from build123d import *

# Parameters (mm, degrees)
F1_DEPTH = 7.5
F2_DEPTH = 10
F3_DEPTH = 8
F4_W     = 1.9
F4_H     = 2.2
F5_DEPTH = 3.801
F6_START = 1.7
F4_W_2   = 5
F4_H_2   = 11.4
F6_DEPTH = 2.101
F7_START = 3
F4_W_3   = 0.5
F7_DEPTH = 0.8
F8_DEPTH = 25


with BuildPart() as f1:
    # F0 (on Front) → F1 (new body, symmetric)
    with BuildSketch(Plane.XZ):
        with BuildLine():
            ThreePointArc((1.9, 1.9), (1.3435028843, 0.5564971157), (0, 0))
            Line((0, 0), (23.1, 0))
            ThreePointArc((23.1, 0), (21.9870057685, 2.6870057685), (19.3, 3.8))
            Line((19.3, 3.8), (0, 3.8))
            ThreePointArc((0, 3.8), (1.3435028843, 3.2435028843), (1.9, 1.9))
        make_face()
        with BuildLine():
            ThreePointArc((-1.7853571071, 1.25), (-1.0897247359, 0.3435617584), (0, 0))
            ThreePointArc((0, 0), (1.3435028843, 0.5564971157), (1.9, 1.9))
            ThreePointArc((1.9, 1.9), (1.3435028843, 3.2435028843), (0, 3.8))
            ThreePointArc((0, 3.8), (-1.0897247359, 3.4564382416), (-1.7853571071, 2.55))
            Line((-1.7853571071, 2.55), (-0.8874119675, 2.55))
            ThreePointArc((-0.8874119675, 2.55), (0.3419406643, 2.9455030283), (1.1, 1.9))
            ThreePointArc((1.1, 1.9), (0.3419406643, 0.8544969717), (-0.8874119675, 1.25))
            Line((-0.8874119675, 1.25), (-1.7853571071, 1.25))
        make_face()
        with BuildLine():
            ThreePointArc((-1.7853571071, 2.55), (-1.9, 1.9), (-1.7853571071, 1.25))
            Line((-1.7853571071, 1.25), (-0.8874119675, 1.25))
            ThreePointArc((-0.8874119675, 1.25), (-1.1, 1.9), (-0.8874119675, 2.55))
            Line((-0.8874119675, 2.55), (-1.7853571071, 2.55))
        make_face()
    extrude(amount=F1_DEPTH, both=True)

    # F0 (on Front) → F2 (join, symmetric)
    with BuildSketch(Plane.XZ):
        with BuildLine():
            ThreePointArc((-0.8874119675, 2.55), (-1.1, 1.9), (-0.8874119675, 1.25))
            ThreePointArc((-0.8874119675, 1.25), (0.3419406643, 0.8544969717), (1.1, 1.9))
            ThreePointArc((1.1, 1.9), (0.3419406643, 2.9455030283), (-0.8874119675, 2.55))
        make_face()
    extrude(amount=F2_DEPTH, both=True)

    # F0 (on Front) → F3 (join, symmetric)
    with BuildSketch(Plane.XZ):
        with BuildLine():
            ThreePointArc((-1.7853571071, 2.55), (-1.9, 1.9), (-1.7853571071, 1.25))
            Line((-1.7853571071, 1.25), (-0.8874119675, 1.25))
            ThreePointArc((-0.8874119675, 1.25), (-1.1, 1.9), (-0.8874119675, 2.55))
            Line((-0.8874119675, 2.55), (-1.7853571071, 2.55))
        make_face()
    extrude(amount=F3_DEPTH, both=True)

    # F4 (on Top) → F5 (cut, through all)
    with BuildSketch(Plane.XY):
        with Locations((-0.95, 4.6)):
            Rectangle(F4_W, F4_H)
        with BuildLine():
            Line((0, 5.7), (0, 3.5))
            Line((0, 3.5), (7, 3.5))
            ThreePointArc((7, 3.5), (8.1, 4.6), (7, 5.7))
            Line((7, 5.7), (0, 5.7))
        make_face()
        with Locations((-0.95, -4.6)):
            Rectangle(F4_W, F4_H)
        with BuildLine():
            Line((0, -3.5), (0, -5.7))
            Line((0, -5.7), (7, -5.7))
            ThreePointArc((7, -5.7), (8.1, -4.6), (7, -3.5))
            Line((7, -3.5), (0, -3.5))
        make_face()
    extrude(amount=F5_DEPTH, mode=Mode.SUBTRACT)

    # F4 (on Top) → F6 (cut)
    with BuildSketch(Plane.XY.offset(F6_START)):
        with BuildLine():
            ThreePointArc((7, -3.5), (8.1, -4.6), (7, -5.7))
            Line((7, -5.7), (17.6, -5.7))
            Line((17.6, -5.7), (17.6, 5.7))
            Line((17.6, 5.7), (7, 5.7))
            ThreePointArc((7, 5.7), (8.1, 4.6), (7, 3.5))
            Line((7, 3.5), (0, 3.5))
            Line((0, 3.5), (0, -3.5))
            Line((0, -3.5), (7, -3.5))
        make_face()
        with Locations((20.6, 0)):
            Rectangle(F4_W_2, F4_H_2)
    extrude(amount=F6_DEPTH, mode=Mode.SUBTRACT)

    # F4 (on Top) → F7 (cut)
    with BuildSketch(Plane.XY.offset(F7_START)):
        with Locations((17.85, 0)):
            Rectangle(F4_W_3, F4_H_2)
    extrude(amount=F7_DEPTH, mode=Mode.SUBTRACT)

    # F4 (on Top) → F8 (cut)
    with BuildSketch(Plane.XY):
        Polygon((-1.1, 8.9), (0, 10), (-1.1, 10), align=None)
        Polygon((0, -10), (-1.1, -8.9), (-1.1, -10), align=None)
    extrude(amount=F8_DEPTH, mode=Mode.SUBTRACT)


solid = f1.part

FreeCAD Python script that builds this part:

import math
import FreeCAD as App
import Part
import Sketcher
from FreeCAD import Vector
Q = App.Units.Quantity


def add_polygon(sketch, points):
    """Adds a closed chain of lines whose ends are joined by coincident constraints."""
    first, n = sketch.GeometryCount, len(points)
    for a, b in zip(points, points[1:] + points[:1]):
        sketch.addGeometry(Part.LineSegment(App.Vector(*a, 0), App.Vector(*b, 0)), False)
    for i in range(n):
        sketch.addConstraint(Sketcher.Constraint("Coincident", first + i, 2, first + (i + 1) % n, 1))

doc = App.newDocument("Part")
body = doc.addObject("PartDesign::Body", "Body")

# Sketch on XZ plane
sketch1 = body.newObject("Sketcher::SketchObject", "Sketch")
sketch1.AttachmentSupport = (doc.getObject("XZ_Plane"), [""])
sketch1.MapMode = "FlatFace"
sketch1.addGeometry([
    Part.LineSegment(Vector(0, 0, 0), Vector(23.1, 0, 0)),  # 0
    Part.ArcOfCircle(Part.Circle(Vector(19.3, 0, 0), Vector(0, 0, 1), 3.8), math.radians(0), math.radians(90)),  # 1
    Part.LineSegment(Vector(19.3, 3.8, 0), Vector(0, 3.8, 0)),  # 2
    Part.ArcOfCircle(Part.Circle(Vector(0, 1.9, 0), Vector(0, 0, 1), 1.9), math.radians(90), math.radians(160)),  # 3
    Part.ArcOfCircle(Part.Circle(Vector(0, 1.9, 0), Vector(0, 0, 1), 1.9), math.radians(160), math.radians(200)),  # 4
    Part.ArcOfCircle(Part.Circle(Vector(0, 1.9, 0), Vector(0, 0, 1), 1.9), math.radians(-160), math.radians(-90)),  # 5
    Part.ArcOfCircle(Part.Circle(Vector(0, 1.9, 0), Vector(0, 0, 1), 1.1), math.radians(0), math.radians(144)),  # 6
    Part.ArcOfCircle(Part.Circle(Vector(0, 1.9, 0), Vector(0, 0, 1), 1.1), math.radians(-144), math.radians(0)),  # 7
    Part.ArcOfCircle(Part.Circle(Vector(0, 1.9, 0), Vector(0, 0, 1), 1.1), math.radians(144), math.radians(216)),  # 8
], False)
sketch1.addConstraint([
    Sketcher.Constraint("Coincident", 0, 2, 1, 1),
    Sketcher.Constraint("Tangent", 1, 2, 2, 1),
    Sketcher.Constraint("Tangent", 2, 2, 3, 1),
    Sketcher.Constraint("Tangent", 3, 2, 4, 1),
    Sketcher.Constraint("Tangent", 4, 2, 5, 1),
    Sketcher.Constraint("Tangent", 5, 2, 0, 1),
    Sketcher.Constraint("Tangent", 6, 1, 7, 2),
    Sketcher.Constraint("Tangent", 7, 1, 8, 2),
    Sketcher.Constraint("Tangent", 8, 1, 6, 2),
    Sketcher.Constraint("Horizontal", 0),
    Sketcher.Constraint("Horizontal", 2),
    Sketcher.Constraint("Coincident", 5, 2, -1, 1),
    Sketcher.Constraint("Coincident", 5, 3, 3, 3),
    Sketcher.Constraint("Coincident", 6, 3, 3, 3),
    Sketcher.Constraint("PointOnObject", 1, 3, -1),
    Sketcher.Constraint("Horizontal", 8, 3, 6, 1),
    Sketcher.Constraint("Horizontal", 4, 2, 7, 1),
    Sketcher.Constraint("Horizontal", 3, 2, 8, 1),
    Sketcher.Constraint("Vertical", 3, 2, 4, 2),
    Sketcher.Constraint("Radius", 1, Q("3.8 mm")),
    Sketcher.Constraint("Radius", 6, Q("1.1 mm")),
    Sketcher.Constraint("DistanceX", 0, 1, 0, 2, Q("23.1 mm")),
    Sketcher.Constraint("DistanceY", 4, 2, 3, 2, Q("1.3 mm")),
])
pad1 = body.newObject("PartDesign::Pad", "Pad")
pad1.Profile = sketch1
pad1.Length = 15
pad1.Midplane = True

# Sketch on XZ plane
sketch2 = body.newObject("Sketcher::SketchObject", "Sketch001")
sketch2.AttachmentSupport = (doc.getObject("XZ_Plane"), [""])
sketch2.MapMode = "FlatFace"
sketch2.addGeometry([
    Part.ArcOfCircle(Part.Circle(Vector(0, 1.9, 0), Vector(0, 0, 1), 1.1), math.radians(144), math.radians(216)),
    Part.ArcOfCircle(Part.Circle(Vector(0, 1.9, 0), Vector(0, 0, 1), 1.1), math.radians(-144), math.radians(0)),
    Part.ArcOfCircle(Part.Circle(Vector(0, 1.9, 0), Vector(0, 0, 1), 1.1), math.radians(0), math.radians(144)),
], False)
sketch2.addConstraint([
    Sketcher.Constraint("Tangent", 0, 2, 1, 1),
    Sketcher.Constraint("Tangent", 1, 2, 2, 1),
    Sketcher.Constraint("Tangent", 2, 2, 0, 1),
    Sketcher.Constraint("PointOnObject", 0, 3, -2),
    Sketcher.Constraint("Horizontal", 2, 3, 1, 2),
    Sketcher.Constraint("Vertical", 0, 2, 2, 2),
    Sketcher.Constraint("Radius", 0, Q("1.1 mm")),
    Sketcher.Constraint("DistanceY", -1, 1, 0, 3, Q("1.9 mm")),
    Sketcher.Constraint("DistanceY", 0, 2, 2, 2, Q("1.3 mm")),
])
pad2 = body.newObject("PartDesign::Pad", "Pad001")
pad2.Profile = sketch2
pad2.Length = 20
pad2.Midplane = True

# Sketch on XZ plane
sketch3 = body.newObject("Sketcher::SketchObject", "Sketch002")
sketch3.AttachmentSupport = (doc.getObject("XZ_Plane"), [""])
sketch3.MapMode = "FlatFace"
sketch3.addGeometry([
    Part.ArcOfCircle(Part.Circle(Vector(0, 1.9, 0), Vector(0, 0, 1), 1.9), math.radians(160), math.radians(200)),
    Part.LineSegment(Vector(-1.8, 1.2, 0), Vector(-0.9, 1.2, 0)),
    Part.ArcOfCircle(Part.Circle(Vector(0, 1.9, 0), Vector(0, 0, 1), 1.1), math.radians(144), math.radians(216)),
    Part.LineSegment(Vector(-0.9, 2.5, 0), Vector(-1.8, 2.5, 0)),
], False)
sketch3.addConstraint([
    Sketcher.Constraint("Coincident", 0, 2, 1, 1),
    Sketcher.Constraint("Coincident", 1, 2, 2, 2),
    Sketcher.Constraint("Coincident", 2, 1, 3, 1),
    Sketcher.Constraint("Coincident", 3, 2, 0, 1),
    Sketcher.Constraint("Horizontal", 1),
    Sketcher.Constraint("Horizontal", 3),
    Sketcher.Constraint("Coincident", 2, 3, 0, 3),
    Sketcher.Constraint("PointOnObject", 0, 3, -2),
    Sketcher.Constraint("Vertical", 1, 2, 2, 1),
    Sketcher.Constraint("Radius", 0, Q("1.9 mm")),
    Sketcher.Constraint("Radius", 2, Q("1.1 mm")),
    Sketcher.Constraint("DistanceY", -1, 1, 0, 3, Q("1.9 mm")),
    Sketcher.Constraint("DistanceY", 1, 2, 2, 1, Q("1.3 mm")),
])
pad3 = body.newObject("PartDesign::Pad", "Pad002")
pad3.Profile = sketch3
pad3.Length = 16
pad3.Midplane = True

# Sketch on XY plane
sketch4 = body.newObject("Sketcher::SketchObject", "Sketch003")
sketch4.AttachmentSupport = (doc.getObject("XY_Plane"), [""])
sketch4.MapMode = "FlatFace"
sketch4.addGeometry([
    Part.LineSegment(Vector(-1.9, 5.7, 0), Vector(-1.9, 3.5, 0)),  # 0
    Part.LineSegment(Vector(-1.9, 3.5, 0), Vector(7, 3.5, 0)),  # 1
    Part.ArcOfCircle(Part.Circle(Vector(7, 4.6, 0), Vector(0, 0, 1), 1.1), math.radians(-90), math.radians(90)),  # 2
    Part.LineSegment(Vector(7, 5.7, 0), Vector(-1.9, 5.7, 0)),  # 3
    Part.LineSegment(Vector(-1.9, -3.5, 0), Vector(-1.9, -5.7, 0)),  # 4
    Part.LineSegment(Vector(-1.9, -5.7, 0), Vector(7, -5.7, 0)),  # 5
    Part.ArcOfCircle(Part.Circle(Vector(7, -4.6, 0), Vector(0, 0, 1), 1.1), math.radians(-90), math.radians(90)),  # 6
    Part.LineSegment(Vector(7, -3.5, 0), Vector(-1.9, -3.5, 0)),  # 7
], False)
sketch4.addConstraint([
    Sketcher.Constraint("Coincident", 0, 2, 1, 1),
    Sketcher.Constraint("Tangent", 1, 2, 2, 1),
    Sketcher.Constraint("Tangent", 2, 2, 3, 1),
    Sketcher.Constraint("Coincident", 3, 2, 0, 1),
    Sketcher.Constraint("Coincident", 4, 2, 5, 1),
    Sketcher.Constraint("Tangent", 5, 2, 6, 1),
    Sketcher.Constraint("Tangent", 6, 2, 7, 1),
    Sketcher.Constraint("Coincident", 7, 2, 4, 1),
    Sketcher.Constraint("Vertical", 0),
    Sketcher.Constraint("Horizontal", 1),
    Sketcher.Constraint("Horizontal", 3),
    Sketcher.Constraint("Vertical", 4),
    Sketcher.Constraint("Horizontal", 5),
    Sketcher.Constraint("Horizontal", 7),
    Sketcher.Constraint("Equal", 2, 6),
    Sketcher.Constraint("Symmetric", 2, 3, 6, 3, -1),
    Sketcher.Constraint("Vertical", 3, 2, 4, 2),
    Sketcher.Constraint("Radius", 2, Q("1.1 mm")),
    Sketcher.Constraint("DistanceX", 1, 1, 1, 2, Q("8.9 mm")),
    Sketcher.Constraint("DistanceX", -1, 1, 2, 3, Q("7 mm")),
    Sketcher.Constraint("DistanceY", 6, 2, 1, 2, Q("7 mm")),
])
pocket1 = body.newObject("PartDesign::Pocket", "Pocket")
pocket1.Profile = sketch4
pocket1.Type = "ThroughAll"
pocket1.Reversed = True

# Sketch on XY plane
sketch5 = body.newObject("Sketcher::SketchObject", "Sketch004")
sketch5.AttachmentSupport = (doc.getObject("XY_Plane"), [""])
sketch5.MapMode = "FlatFace"
sketch5.AttachmentOffset = App.Placement(Vector(0, 0, 1.7), App.Rotation())
sketch5.addGeometry(Part.ArcOfCircle(Part.Circle(Vector(7, -4.6, 0), Vector(0, 0, 1), 1.1), math.radians(-90), math.radians(90)), False)  # 0
sketch5.addGeometry(Part.LineSegment(Vector(7, -5.7, 0), Vector(17.6, -5.7, 0)), False)  # 1
sketch5.addGeometry(Part.LineSegment(Vector(17.6, -5.7, 0), Vector(17.6, 5.7, 0)), False)  # 2
sketch5.addGeometry(Part.LineSegment(Vector(17.6, 5.7, 0), Vector(7, 5.7, 0)), False)  # 3
sketch5.addGeometry(Part.ArcOfCircle(Part.Circle(Vector(7, 4.6, 0), Vector(0, 0, 1), 1.1), math.radians(-90), math.radians(90)), False)  # 4
sketch5.addGeometry(Part.LineSegment(Vector(7, 3.5, 0), Vector(0, 3.5, 0)), False)  # 5
sketch5.addGeometry(Part.LineSegment(Vector(0, 3.5, 0), Vector(0, -3.5, 0)), False)  # 6
sketch5.addGeometry(Part.LineSegment(Vector(0, -3.5, 0), Vector(7, -3.5, 0)), False)  # 7
add_polygon(sketch5, [(18.1, 5.7), (18.1, -5.7), (23.1, -5.7), (23.1, 5.7)])  # lines 8-11
sketch5.addConstraint([
    Sketcher.Constraint("Tangent", 0, 1, 1, 1),
    Sketcher.Constraint("Coincident", 1, 2, 2, 1),
    Sketcher.Constraint("Coincident", 2, 2, 3, 1),
    Sketcher.Constraint("Tangent", 3, 2, 4, 2),
    Sketcher.Constraint("Tangent", 4, 1, 5, 1),
    Sketcher.Constraint("Coincident", 5, 2, 6, 1),
    Sketcher.Constraint("Coincident", 6, 2, 7, 1),
    Sketcher.Constraint("Tangent", 7, 2, 0, 2),
    Sketcher.Constraint("Horizontal", 1),
    Sketcher.Constraint("Vertical", 2),
    Sketcher.Constraint("Horizontal", 3),
    Sketcher.Constraint("Horizontal", 5),
    Sketcher.Constraint("Vertical", 6),
    Sketcher.Constraint("Horizontal", 7),
    Sketcher.Constraint("Vertical", 8),
    Sketcher.Constraint("Horizontal", 9),
    Sketcher.Constraint("Vertical", 10),
    Sketcher.Constraint("Horizontal", 11),
    Sketcher.Constraint("Equal", 0, 4),
    Sketcher.Constraint("Symmetric", 5, 2, 6, 2, -1, 1),
    Sketcher.Constraint("Horizontal", 1, 2, 8, 2),
    Sketcher.Constraint("Horizontal", 3, 2, 10, 2),
    Sketcher.Constraint("Vertical", 0, 3, 4, 3),
    Sketcher.Constraint("Equal", 7, 6),
    Sketcher.Constraint("Radius", 0, Q("1.1 mm")),
    Sketcher.Constraint("DistanceX", 5, 2, 5, 1, Q("7 mm")),
    Sketcher.Constraint("DistanceX", 9, 1, 9, 2, Q("5 mm")),
    Sketcher.Constraint("DistanceX", 1, 1, 1, 2, Q("10.6 mm")),
    Sketcher.Constraint("DistanceX", -1, 1, 8, 2, Q("18.1 mm")),
])
pocket2 = body.newObject("PartDesign::Pocket", "Pocket001")
pocket2.Profile = sketch5
pocket2.Length = 2.101
pocket2.Reversed = True

# Sketch on XY plane
sketch6 = body.newObject("Sketcher::SketchObject", "Sketch005")
sketch6.AttachmentSupport = (doc.getObject("XY_Plane"), [""])
sketch6.MapMode = "FlatFace"
sketch6.AttachmentOffset = App.Placement(Vector(0, 0, 3), App.Rotation())
add_polygon(sketch6, [(17.6, 5.7), (17.6, -5.7), (18.1, -5.7), (18.1, 5.7)])  # lines 0-3
sketch6.addConstraint([
    Sketcher.Constraint("Vertical", 0),
    Sketcher.Constraint("Horizontal", 1),
    Sketcher.Constraint("Vertical", 2),
    Sketcher.Constraint("Horizontal", 3),
    Sketcher.Constraint("DistanceX", 1, 1, 1, 2, Q("0.5 mm")),
    Sketcher.Constraint("DistanceY", 0, 2, 0, 1, Q("11.4 mm")),
    Sketcher.Constraint("DistanceX", -1, 1, 0, 2, Q("17.6 mm")),
    Sketcher.Constraint("DistanceY", 0, 2, -1, 1, Q("5.7 mm")),
])
pocket3 = body.newObject("PartDesign::Pocket", "Pocket002")
pocket3.Profile = sketch6
pocket3.Length = 0.8
pocket3.Reversed = True

# Sketch on XY plane
sketch7 = body.newObject("Sketcher::SketchObject", "Sketch006")
sketch7.AttachmentSupport = (doc.getObject("XY_Plane"), [""])
sketch7.MapMode = "FlatFace"
add_polygon(sketch7, [(-1.1, 8.9), (0, 10), (-1.1, 10)])  # lines 0-2
add_polygon(sketch7, [(0, -10), (-1.1, -8.9), (-1.1, -10)])  # lines 3-5
sketch7.addConstraint([
    Sketcher.Constraint("Horizontal", 1),
    Sketcher.Constraint("Vertical", 2),
    Sketcher.Constraint("Vertical", 4),
    Sketcher.Constraint("Horizontal", 5),
    Sketcher.Constraint("Symmetric", 0, 2, 5, 2, -1, 1),
    Sketcher.Constraint("Symmetric", 2, 2, 3, 2, -1),
    Sketcher.Constraint("PointOnObject", 0, 2, -2),
    Sketcher.Constraint("Perpendicular", 0, 3),
    Sketcher.Constraint("DistanceX", 1, 2, 1, 1, Q("1.1 mm")),
    Sketcher.Constraint("DistanceY", -1, 1, 0, 2, Q("10 mm")),
])
pocket4 = body.newObject("PartDesign::Pocket", "Pocket003")
pocket4.Profile = sketch7
pocket4.Length = 25
pocket4.Reversed = True

doc.recompute()
